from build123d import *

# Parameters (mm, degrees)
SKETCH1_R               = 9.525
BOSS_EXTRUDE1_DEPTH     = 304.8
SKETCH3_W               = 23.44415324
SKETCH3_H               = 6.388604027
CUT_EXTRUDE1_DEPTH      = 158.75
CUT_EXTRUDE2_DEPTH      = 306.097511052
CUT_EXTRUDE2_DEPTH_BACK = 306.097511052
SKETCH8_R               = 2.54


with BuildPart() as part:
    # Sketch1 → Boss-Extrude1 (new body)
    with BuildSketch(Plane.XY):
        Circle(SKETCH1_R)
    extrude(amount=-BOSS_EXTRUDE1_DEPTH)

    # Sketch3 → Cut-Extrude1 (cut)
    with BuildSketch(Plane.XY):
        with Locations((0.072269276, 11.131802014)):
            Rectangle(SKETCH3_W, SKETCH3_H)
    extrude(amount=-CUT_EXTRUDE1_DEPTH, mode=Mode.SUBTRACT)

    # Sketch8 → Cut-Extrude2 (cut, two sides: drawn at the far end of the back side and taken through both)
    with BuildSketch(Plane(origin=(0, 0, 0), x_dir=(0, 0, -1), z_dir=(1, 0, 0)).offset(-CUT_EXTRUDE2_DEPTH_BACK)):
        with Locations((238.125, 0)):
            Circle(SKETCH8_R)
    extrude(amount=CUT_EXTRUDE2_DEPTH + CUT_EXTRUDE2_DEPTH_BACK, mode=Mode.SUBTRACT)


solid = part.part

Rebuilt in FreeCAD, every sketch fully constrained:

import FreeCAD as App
import Part
import Sketcher

V = App.Vector
Q = App.Units.Quantity

doc = App.newDocument("Part")
params = doc.addObject("Spreadsheet::Sheet", "Params")
for row, (alias, value) in enumerate([
    ("sketch1_diameter", "0.75 in"),
    ("pad1_length", "12 in"),
    ("pocket1_length", "6.25 in"),
    ("sketch3_diameter", "0.2 in"),
], start=1):
    params.set(f"A{row}", alias)
    params.set(f"B{row}", "=" + value)
    params.setAlias(f"B{row}", alias)

body = doc.addObject("PartDesign::Body", "Body")

# Sketch on XY plane
sketch1 = doc.addObject("Sketcher::SketchObject", "Sketch")
body.addObject(sketch1)
sketch1.AttachmentSupport = (doc.XY_Plane, [""])
sketch1.MapMode = "FlatFace"
sketch1.addGeometry(Part.Circle(V(0, 0, 0), V(0, 0, 1), 10), False)
sketch1.addConstraint([
    Sketcher.Constraint("Coincident", 0, 3, -1, 1),
    Sketcher.Constraint("Diameter", 0, Q("0.75 in")),
])
sketch1.setExpression("Constraints[1]", "Params.sketch1_diameter")
pad1 = doc.addObject("PartDesign::Pad", "Pad")
body.addObject(pad1)
pad1.Profile = sketch1
pad1.setExpression("Length", "Params.pad1_length")
pad1.Reversed = True

# Sketch on XY plane
sketch2 = doc.addObject("Sketcher::SketchObject", "Sketch001")
body.addObject(sketch2)
sketch2.AttachmentSupport = (doc.XY_Plane, [""])
sketch2.MapMode = "FlatFace"
sketch2.addGeometry([
    Part.LineSegment(V(-12, 14, 0), V(-12, 8, 0)),
    Part.LineSegment(V(-12, 8, 0), V(12, 8, 0)),
    Part.LineSegment(V(12, 8, 0), V(12, 14, 0)),
    Part.LineSegment(V(12, 14, 0), V(-12, 14, 0)),
], False)
sketch2.addConstraint([
    Sketcher.Constraint("Coincident", 0, 2, 1, 1),
    Sketcher.Constraint("Coincident", 1, 2, 2, 1),
    Sketcher.Constraint("Coincident", 2, 2, 3, 1),
    Sketcher.Constraint("Coincident", 3, 2, 0, 1),
    Sketcher.Constraint("Vertical", 0),
    Sketcher.Constraint("Horizontal", 1),
    Sketcher.Constraint("Vertical", 2),
    Sketcher.Constraint("Horizontal", 3),
    Sketcher.Constraint("DistanceY", -1, 1, 0, 2, Q("0.3125 in")),
    Sketcher.Constraint("DistanceX", 1, 1, 1, 2, 23.444153),
    Sketcher.Constraint("DistanceY", 0, 2, 0, 1, 6.388604),
    Sketcher.Constraint("DistanceX", 0, 2, -1, 1, 11.649807),
])
pocket1 = doc.addObject("PartDesign::Pocket", "Pocket")
body.addObject(pocket1)
pocket1.Profile = sketch2
pocket1.setExpression("Length", "Params.pocket1_length")

# Sketch on YZ plane
sketch3 = doc.addObject("Sketcher::SketchObject", "Sketch002")
body.addObject(sketch3)
sketch3.AttachmentSupport = (doc.YZ_Plane, [""])
sketch3.MapMode = "FlatFace"
sketch3.addGeometry(Part.Circle(V(0, -238.1, 0), V(0, 0, 1), 2.5), False)
sketch3.addConstraint([
    Sketcher.Constraint("PointOnObject", 0, 3, -2),
    Sketcher.Constraint("Diameter", 0, Q("0.2 in")),
    Sketcher.Constraint("DistanceY", 0, 3, -1, 1, Q("9.375 in")),
])
sketch3.setExpression("Constraints[1]", "Params.sketch3_diameter")
pocket2 = doc.addObject("PartDesign::Pocket", "Pocket001")
body.addObject(pocket2)
pocket2.Profile = sketch3
pocket2.Type = "ThroughAll"
pocket2.Midplane = True

doc.recompute()
